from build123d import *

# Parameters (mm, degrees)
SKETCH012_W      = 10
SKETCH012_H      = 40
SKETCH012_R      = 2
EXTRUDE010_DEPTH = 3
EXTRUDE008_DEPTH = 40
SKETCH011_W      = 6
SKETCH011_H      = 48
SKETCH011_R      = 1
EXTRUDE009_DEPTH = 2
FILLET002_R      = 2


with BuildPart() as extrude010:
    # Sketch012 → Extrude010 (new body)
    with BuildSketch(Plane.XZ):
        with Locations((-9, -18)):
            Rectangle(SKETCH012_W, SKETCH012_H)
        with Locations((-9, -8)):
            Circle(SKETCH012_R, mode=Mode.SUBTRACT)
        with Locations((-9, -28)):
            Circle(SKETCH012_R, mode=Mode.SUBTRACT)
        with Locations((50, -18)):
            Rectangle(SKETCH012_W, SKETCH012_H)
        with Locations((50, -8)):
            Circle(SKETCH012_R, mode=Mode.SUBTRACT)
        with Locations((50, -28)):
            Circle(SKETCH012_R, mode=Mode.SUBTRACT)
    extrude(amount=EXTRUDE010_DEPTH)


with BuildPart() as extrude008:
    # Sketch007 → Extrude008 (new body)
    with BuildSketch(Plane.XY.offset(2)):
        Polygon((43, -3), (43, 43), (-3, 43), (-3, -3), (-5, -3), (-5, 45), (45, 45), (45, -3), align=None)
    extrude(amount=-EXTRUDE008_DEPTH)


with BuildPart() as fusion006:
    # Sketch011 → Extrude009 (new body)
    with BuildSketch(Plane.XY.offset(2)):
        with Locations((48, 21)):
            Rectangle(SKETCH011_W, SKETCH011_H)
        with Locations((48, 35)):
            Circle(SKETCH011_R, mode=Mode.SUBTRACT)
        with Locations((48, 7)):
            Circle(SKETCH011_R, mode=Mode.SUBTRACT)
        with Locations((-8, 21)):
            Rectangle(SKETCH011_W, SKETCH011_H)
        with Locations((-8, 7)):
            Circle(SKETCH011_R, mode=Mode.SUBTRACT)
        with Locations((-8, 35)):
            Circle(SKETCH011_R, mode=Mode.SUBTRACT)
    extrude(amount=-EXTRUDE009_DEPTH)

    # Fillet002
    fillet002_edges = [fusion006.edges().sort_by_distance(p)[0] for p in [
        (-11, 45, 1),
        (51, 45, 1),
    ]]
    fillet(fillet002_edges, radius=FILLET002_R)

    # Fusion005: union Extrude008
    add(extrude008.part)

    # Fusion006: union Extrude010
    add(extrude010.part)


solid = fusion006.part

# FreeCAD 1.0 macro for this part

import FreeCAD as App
import Part
import Sketcher
from FreeCAD import Vector
Q = App.Units.Quantity


def edges_at(feature, points):
    """Names of the edges that pass closest to the given points."""
    edges = feature.Shape.Edges
    near = lambda p: min(range(len(edges)), key=lambda i: edges[i].distToShape(Part.Vertex(*p))[0])
    return sorted({f"Edge{near(p) + 1}" for p in points})


def add_polygon(sketch, points):
    """Adds a closed chain of lines whose ends are joined by coincident constraints."""
    first, n = sketch.GeometryCount, len(points)
    for a, b in zip(points, points[1:] + points[:1]):
        sketch.addGeometry(Part.LineSegment(App.Vector(*a, 0), App.Vector(*b, 0)), False)
    for i in range(n):
        sketch.addConstraint(Sketcher.Constraint("Coincident", first + i, 2, first + (i + 1) % n, 1))

doc = App.newDocument("Part")
body = doc.addObject("PartDesign::Body", "Body")
body.AllowCompound = True

# Sketch on XZ plane
sketch1 = body.newObject("Sketcher::SketchObject", "Sketch")
sketch1.AttachmentSupport = (doc.getObject("XZ_Plane"), [""])
sketch1.MapMode = "FlatFace"
add_polygon(sketch1, [(-14, 2), (-14, -38), (-4, -38), (-4, 2)])  # lines 0-3
sketch1.addGeometry(Part.Circle(Vector(-9, -28, 0), Vector(0, 0, 1), 2), False)  # 4
sketch1.addGeometry(Part.Circle(Vector(-9, -8, 0), Vector(0, 0, 1), 2), False)  # 5
add_polygon(sketch1, [(45, 2), (45, -38), (55, -38), (55, 2)])  # lines 6-9
sketch1.addGeometry(Part.Circle(Vector(50, -28, 0), Vector(0, 0, 1), 2), False)  # 10
sketch1.addGeometry(Part.Circle(Vector(50, -8, 0), Vector(0, 0, 1), 2), False)  # 11
sketch1.addConstraint([
    Sketcher.Constraint("Vertical", 0),
    Sketcher.Constraint("Horizontal", 1),
    Sketcher.Constraint("Vertical", 2),
    Sketcher.Constraint("Horizontal", 3),
    Sketcher.Constraint("Vertical", 6),
    Sketcher.Constraint("Horizontal", 7),
    Sketcher.Constraint("Vertical", 8),
    Sketcher.Constraint("Horizontal", 9),
    Sketcher.Constraint("Equal", 4, 5),
    Sketcher.Constraint("Equal", 5, 10),
    Sketcher.Constraint("Equal", 10, 11),
    Sketcher.Constraint("Horizontal", 4, 3, 10, 3),
    Sketcher.Constraint("Horizontal", 5, 3, 11, 3),
    Sketcher.Constraint("Horizontal", 1, 2, 6, 2),
    Sketcher.Constraint("Horizontal", 3, 2, 8, 2),
    Sketcher.Constraint("Vertical", 4, 3, 5, 3),
    Sketcher.Constraint("Vertical", 10, 3, 11, 3),
    Sketcher.Constraint("Equal", 3, 7),
    Sketcher.Constraint("Diameter", 4, Q("4 mm")),
    Sketcher.Constraint("DistanceX", 1, 1, 1, 2, Q("10 mm")),
    Sketcher.Constraint("DistanceY", 0, 2, 0, 1, Q("40 mm")),
    Sketcher.Constraint("DistanceX", 4, 3, -1, 1, Q("9 mm")),
    Sketcher.Constraint("DistanceY", 4, 3, -1, 1, Q("28 mm")),
    Sketcher.Constraint("DistanceY", 5, 3, -1, 1, Q("8 mm")),
    Sketcher.Constraint("DistanceX", -1, 1, 10, 3, Q("50 mm")),
    Sketcher.Constraint("DistanceX", 0, 2, -1, 1, Q("14 mm")),
    Sketcher.Constraint("DistanceY", 0, 2, -1, 1, Q("38 mm")),
    Sketcher.Constraint("DistanceX", -1, 1, 6, 2, Q("45 mm")),
])
pad1 = body.newObject("PartDesign::Pad", "Pad")
pad1.Profile = sketch1
pad1.Length = 3
body2 = doc.addObject("PartDesign::Body", "Body001")

# Sketch on XY plane
sketch2 = body2.newObject("Sketcher::SketchObject", "Sketch001")
sketch2.AttachmentSupport = (doc.getObject("XY_Plane001"), [""])
sketch2.MapMode = "FlatFace"
sketch2.AttachmentOffset = App.Placement(Vector(0, 0, 2), App.Rotation())
add_polygon(sketch2, [(43, 43), (43, -3), (45, -3), (45, 45), (-5, 45), (-5, -3), (-3, -3), (-3, 43)])  # lines 0-7
sketch2.addConstraint([
    Sketcher.Constraint("Vertical", 0),
    Sketcher.Constraint("Horizontal", 1),
    Sketcher.Constraint("Vertical", 2),
    Sketcher.Constraint("Horizontal", 3),
    Sketcher.Constraint("Vertical", 4),
    Sketcher.Constraint("Horizontal", 5),
    Sketcher.Constraint("Vertical", 6),
    Sketcher.Constraint("Horizontal", 7),
    Sketcher.Constraint("Horizontal", 1, 2, 4, 2),
    Sketcher.Constraint("Equal", 1, 5),
    Sketcher.Constraint("Equal", 7, 0),
    Sketcher.Constraint("DistanceX", 1, 1, 1, 2, Q("2 mm")),
    Sketcher.Constraint("DistanceX", 3, 2, 3, 1, Q("50 mm")),
    Sketcher.Constraint("DistanceY", 2, 1, 2, 2, Q("48 mm")),
    Sketcher.Constraint("DistanceX", -1, 1, 0, 2, Q("43 mm")),
    Sketcher.Constraint("DistanceY", 0, 2, -1, 1, Q("3 mm")),
])
pad2 = body2.newObject("PartDesign::Pad", "Pad001")
pad2.Profile = sketch2
pad2.Length = 40
pad2.Reversed = True
body3 = doc.addObject("PartDesign::Body", "Body002")
body3.AllowCompound = True

# Sketch on XY plane
sketch3 = body3.newObject("Sketcher::SketchObject", "Sketch002")
sketch3.AttachmentSupport = (doc.getObject("XY_Plane002"), [""])
sketch3.MapMode = "FlatFace"
sketch3.AttachmentOffset = App.Placement(Vector(0, 0, 2), App.Rotation())
add_polygon(sketch3, [(45, 45), (45, -3), (51, -3), (51, 45)])  # lines 0-3
sketch3.addGeometry(Part.Circle(Vector(48, 7, 0), Vector(0, 0, 1), 1), False)  # 4
sketch3.addGeometry(Part.Circle(Vector(48, 35, 0), Vector(0, 0, 1), 1), False)  # 5
add_polygon(sketch3, [(-11, 45), (-11, -3), (-5, -3), (-5, 45)])  # lines 6-9
sketch3.addGeometry(Part.Circle(Vector(-8, 7, 0), Vector(0, 0, 1), 1), False)  # 10
sketch3.addGeometry(Part.Circle(Vector(-8, 35, 0), Vector(0, 0, 1), 1), False)  # 11
sketch3.addConstraint([
    Sketcher.Constraint("Vertical", 0),
    Sketcher.Constraint("Horizontal", 1),
    Sketcher.Constraint("Vertical", 2),
    Sketcher.Constraint("Horizontal", 3),
    Sketcher.Constraint("Vertical", 6),
    Sketcher.Constraint("Horizontal", 7),
    Sketcher.Constraint("Vertical", 8),
    Sketcher.Constraint("Horizontal", 9),
    Sketcher.Constraint("Equal", 4, 5),
    Sketcher.Constraint("Equal", 5, 10),
    Sketcher.Constraint("Equal", 10, 11),
    Sketcher.Constraint("Horizontal", 4, 3, 10, 3),
    Sketcher.Constraint("Horizontal", 5, 3, 11, 3),
    Sketcher.Constraint("Horizontal", 1, 2, 6, 2),
    Sketcher.Constraint("Horizontal", 3, 2, 8, 2),
    Sketcher.Constraint("Vertical", 4, 3, 5, 3),
    Sketcher.Constraint("Vertical", 10, 3, 11, 3),
    Sketcher.Constraint("Equal", 3, 7),
    Sketcher.Constraint("Diameter", 4, Q("2 mm")),
    Sketcher.Constraint("DistanceX", 1, 1, 1, 2, Q("6 mm")),
    Sketcher.Constraint("DistanceY", 0, 2, 0, 1, Q("48 mm")),
    Sketcher.Constraint("DistanceX", -1, 1, 4, 3, Q("48 mm")),
    Sketcher.Constraint("DistanceY", -1, 1, 4, 3, Q("7 mm")),
    Sketcher.Constraint("DistanceY", -1, 1, 5, 3, Q("35 mm")),
    Sketcher.Constraint("DistanceX", 10, 3, -1, 1, Q("8 mm")),
    Sketcher.Constraint("DistanceX", -1, 1, 0, 2, Q("45 mm")),
    Sketcher.Constraint("DistanceY", 0, 2, -1, 1, Q("3 mm")),
    Sketcher.Constraint("DistanceX", 6, 2, -1, 1, Q("11 mm")),
])
pad3 = body3.newObject("PartDesign::Pad", "Pad002")
pad3.Profile = sketch3
pad3.Length = 2
pad3.Reversed = True
doc.recompute()

fillet = body3.newObject("PartDesign::Fillet", "Fillet")
fillet.Base = (pad3, edges_at(pad3, [(-11, 45, 1), (51, 45, 1)]))
fillet.Radius = 2
doc.recompute()

boolean = body3.newObject("PartDesign::Boolean", "Boolean")
boolean.Type = "Fuse"
boolean.addObjects([body2])
doc.recompute()

boolean2 = body3.newObject("PartDesign::Boolean", "Boolean001")
boolean2.Type = "Fuse"
boolean2.addObjects([body])

doc.recompute()
